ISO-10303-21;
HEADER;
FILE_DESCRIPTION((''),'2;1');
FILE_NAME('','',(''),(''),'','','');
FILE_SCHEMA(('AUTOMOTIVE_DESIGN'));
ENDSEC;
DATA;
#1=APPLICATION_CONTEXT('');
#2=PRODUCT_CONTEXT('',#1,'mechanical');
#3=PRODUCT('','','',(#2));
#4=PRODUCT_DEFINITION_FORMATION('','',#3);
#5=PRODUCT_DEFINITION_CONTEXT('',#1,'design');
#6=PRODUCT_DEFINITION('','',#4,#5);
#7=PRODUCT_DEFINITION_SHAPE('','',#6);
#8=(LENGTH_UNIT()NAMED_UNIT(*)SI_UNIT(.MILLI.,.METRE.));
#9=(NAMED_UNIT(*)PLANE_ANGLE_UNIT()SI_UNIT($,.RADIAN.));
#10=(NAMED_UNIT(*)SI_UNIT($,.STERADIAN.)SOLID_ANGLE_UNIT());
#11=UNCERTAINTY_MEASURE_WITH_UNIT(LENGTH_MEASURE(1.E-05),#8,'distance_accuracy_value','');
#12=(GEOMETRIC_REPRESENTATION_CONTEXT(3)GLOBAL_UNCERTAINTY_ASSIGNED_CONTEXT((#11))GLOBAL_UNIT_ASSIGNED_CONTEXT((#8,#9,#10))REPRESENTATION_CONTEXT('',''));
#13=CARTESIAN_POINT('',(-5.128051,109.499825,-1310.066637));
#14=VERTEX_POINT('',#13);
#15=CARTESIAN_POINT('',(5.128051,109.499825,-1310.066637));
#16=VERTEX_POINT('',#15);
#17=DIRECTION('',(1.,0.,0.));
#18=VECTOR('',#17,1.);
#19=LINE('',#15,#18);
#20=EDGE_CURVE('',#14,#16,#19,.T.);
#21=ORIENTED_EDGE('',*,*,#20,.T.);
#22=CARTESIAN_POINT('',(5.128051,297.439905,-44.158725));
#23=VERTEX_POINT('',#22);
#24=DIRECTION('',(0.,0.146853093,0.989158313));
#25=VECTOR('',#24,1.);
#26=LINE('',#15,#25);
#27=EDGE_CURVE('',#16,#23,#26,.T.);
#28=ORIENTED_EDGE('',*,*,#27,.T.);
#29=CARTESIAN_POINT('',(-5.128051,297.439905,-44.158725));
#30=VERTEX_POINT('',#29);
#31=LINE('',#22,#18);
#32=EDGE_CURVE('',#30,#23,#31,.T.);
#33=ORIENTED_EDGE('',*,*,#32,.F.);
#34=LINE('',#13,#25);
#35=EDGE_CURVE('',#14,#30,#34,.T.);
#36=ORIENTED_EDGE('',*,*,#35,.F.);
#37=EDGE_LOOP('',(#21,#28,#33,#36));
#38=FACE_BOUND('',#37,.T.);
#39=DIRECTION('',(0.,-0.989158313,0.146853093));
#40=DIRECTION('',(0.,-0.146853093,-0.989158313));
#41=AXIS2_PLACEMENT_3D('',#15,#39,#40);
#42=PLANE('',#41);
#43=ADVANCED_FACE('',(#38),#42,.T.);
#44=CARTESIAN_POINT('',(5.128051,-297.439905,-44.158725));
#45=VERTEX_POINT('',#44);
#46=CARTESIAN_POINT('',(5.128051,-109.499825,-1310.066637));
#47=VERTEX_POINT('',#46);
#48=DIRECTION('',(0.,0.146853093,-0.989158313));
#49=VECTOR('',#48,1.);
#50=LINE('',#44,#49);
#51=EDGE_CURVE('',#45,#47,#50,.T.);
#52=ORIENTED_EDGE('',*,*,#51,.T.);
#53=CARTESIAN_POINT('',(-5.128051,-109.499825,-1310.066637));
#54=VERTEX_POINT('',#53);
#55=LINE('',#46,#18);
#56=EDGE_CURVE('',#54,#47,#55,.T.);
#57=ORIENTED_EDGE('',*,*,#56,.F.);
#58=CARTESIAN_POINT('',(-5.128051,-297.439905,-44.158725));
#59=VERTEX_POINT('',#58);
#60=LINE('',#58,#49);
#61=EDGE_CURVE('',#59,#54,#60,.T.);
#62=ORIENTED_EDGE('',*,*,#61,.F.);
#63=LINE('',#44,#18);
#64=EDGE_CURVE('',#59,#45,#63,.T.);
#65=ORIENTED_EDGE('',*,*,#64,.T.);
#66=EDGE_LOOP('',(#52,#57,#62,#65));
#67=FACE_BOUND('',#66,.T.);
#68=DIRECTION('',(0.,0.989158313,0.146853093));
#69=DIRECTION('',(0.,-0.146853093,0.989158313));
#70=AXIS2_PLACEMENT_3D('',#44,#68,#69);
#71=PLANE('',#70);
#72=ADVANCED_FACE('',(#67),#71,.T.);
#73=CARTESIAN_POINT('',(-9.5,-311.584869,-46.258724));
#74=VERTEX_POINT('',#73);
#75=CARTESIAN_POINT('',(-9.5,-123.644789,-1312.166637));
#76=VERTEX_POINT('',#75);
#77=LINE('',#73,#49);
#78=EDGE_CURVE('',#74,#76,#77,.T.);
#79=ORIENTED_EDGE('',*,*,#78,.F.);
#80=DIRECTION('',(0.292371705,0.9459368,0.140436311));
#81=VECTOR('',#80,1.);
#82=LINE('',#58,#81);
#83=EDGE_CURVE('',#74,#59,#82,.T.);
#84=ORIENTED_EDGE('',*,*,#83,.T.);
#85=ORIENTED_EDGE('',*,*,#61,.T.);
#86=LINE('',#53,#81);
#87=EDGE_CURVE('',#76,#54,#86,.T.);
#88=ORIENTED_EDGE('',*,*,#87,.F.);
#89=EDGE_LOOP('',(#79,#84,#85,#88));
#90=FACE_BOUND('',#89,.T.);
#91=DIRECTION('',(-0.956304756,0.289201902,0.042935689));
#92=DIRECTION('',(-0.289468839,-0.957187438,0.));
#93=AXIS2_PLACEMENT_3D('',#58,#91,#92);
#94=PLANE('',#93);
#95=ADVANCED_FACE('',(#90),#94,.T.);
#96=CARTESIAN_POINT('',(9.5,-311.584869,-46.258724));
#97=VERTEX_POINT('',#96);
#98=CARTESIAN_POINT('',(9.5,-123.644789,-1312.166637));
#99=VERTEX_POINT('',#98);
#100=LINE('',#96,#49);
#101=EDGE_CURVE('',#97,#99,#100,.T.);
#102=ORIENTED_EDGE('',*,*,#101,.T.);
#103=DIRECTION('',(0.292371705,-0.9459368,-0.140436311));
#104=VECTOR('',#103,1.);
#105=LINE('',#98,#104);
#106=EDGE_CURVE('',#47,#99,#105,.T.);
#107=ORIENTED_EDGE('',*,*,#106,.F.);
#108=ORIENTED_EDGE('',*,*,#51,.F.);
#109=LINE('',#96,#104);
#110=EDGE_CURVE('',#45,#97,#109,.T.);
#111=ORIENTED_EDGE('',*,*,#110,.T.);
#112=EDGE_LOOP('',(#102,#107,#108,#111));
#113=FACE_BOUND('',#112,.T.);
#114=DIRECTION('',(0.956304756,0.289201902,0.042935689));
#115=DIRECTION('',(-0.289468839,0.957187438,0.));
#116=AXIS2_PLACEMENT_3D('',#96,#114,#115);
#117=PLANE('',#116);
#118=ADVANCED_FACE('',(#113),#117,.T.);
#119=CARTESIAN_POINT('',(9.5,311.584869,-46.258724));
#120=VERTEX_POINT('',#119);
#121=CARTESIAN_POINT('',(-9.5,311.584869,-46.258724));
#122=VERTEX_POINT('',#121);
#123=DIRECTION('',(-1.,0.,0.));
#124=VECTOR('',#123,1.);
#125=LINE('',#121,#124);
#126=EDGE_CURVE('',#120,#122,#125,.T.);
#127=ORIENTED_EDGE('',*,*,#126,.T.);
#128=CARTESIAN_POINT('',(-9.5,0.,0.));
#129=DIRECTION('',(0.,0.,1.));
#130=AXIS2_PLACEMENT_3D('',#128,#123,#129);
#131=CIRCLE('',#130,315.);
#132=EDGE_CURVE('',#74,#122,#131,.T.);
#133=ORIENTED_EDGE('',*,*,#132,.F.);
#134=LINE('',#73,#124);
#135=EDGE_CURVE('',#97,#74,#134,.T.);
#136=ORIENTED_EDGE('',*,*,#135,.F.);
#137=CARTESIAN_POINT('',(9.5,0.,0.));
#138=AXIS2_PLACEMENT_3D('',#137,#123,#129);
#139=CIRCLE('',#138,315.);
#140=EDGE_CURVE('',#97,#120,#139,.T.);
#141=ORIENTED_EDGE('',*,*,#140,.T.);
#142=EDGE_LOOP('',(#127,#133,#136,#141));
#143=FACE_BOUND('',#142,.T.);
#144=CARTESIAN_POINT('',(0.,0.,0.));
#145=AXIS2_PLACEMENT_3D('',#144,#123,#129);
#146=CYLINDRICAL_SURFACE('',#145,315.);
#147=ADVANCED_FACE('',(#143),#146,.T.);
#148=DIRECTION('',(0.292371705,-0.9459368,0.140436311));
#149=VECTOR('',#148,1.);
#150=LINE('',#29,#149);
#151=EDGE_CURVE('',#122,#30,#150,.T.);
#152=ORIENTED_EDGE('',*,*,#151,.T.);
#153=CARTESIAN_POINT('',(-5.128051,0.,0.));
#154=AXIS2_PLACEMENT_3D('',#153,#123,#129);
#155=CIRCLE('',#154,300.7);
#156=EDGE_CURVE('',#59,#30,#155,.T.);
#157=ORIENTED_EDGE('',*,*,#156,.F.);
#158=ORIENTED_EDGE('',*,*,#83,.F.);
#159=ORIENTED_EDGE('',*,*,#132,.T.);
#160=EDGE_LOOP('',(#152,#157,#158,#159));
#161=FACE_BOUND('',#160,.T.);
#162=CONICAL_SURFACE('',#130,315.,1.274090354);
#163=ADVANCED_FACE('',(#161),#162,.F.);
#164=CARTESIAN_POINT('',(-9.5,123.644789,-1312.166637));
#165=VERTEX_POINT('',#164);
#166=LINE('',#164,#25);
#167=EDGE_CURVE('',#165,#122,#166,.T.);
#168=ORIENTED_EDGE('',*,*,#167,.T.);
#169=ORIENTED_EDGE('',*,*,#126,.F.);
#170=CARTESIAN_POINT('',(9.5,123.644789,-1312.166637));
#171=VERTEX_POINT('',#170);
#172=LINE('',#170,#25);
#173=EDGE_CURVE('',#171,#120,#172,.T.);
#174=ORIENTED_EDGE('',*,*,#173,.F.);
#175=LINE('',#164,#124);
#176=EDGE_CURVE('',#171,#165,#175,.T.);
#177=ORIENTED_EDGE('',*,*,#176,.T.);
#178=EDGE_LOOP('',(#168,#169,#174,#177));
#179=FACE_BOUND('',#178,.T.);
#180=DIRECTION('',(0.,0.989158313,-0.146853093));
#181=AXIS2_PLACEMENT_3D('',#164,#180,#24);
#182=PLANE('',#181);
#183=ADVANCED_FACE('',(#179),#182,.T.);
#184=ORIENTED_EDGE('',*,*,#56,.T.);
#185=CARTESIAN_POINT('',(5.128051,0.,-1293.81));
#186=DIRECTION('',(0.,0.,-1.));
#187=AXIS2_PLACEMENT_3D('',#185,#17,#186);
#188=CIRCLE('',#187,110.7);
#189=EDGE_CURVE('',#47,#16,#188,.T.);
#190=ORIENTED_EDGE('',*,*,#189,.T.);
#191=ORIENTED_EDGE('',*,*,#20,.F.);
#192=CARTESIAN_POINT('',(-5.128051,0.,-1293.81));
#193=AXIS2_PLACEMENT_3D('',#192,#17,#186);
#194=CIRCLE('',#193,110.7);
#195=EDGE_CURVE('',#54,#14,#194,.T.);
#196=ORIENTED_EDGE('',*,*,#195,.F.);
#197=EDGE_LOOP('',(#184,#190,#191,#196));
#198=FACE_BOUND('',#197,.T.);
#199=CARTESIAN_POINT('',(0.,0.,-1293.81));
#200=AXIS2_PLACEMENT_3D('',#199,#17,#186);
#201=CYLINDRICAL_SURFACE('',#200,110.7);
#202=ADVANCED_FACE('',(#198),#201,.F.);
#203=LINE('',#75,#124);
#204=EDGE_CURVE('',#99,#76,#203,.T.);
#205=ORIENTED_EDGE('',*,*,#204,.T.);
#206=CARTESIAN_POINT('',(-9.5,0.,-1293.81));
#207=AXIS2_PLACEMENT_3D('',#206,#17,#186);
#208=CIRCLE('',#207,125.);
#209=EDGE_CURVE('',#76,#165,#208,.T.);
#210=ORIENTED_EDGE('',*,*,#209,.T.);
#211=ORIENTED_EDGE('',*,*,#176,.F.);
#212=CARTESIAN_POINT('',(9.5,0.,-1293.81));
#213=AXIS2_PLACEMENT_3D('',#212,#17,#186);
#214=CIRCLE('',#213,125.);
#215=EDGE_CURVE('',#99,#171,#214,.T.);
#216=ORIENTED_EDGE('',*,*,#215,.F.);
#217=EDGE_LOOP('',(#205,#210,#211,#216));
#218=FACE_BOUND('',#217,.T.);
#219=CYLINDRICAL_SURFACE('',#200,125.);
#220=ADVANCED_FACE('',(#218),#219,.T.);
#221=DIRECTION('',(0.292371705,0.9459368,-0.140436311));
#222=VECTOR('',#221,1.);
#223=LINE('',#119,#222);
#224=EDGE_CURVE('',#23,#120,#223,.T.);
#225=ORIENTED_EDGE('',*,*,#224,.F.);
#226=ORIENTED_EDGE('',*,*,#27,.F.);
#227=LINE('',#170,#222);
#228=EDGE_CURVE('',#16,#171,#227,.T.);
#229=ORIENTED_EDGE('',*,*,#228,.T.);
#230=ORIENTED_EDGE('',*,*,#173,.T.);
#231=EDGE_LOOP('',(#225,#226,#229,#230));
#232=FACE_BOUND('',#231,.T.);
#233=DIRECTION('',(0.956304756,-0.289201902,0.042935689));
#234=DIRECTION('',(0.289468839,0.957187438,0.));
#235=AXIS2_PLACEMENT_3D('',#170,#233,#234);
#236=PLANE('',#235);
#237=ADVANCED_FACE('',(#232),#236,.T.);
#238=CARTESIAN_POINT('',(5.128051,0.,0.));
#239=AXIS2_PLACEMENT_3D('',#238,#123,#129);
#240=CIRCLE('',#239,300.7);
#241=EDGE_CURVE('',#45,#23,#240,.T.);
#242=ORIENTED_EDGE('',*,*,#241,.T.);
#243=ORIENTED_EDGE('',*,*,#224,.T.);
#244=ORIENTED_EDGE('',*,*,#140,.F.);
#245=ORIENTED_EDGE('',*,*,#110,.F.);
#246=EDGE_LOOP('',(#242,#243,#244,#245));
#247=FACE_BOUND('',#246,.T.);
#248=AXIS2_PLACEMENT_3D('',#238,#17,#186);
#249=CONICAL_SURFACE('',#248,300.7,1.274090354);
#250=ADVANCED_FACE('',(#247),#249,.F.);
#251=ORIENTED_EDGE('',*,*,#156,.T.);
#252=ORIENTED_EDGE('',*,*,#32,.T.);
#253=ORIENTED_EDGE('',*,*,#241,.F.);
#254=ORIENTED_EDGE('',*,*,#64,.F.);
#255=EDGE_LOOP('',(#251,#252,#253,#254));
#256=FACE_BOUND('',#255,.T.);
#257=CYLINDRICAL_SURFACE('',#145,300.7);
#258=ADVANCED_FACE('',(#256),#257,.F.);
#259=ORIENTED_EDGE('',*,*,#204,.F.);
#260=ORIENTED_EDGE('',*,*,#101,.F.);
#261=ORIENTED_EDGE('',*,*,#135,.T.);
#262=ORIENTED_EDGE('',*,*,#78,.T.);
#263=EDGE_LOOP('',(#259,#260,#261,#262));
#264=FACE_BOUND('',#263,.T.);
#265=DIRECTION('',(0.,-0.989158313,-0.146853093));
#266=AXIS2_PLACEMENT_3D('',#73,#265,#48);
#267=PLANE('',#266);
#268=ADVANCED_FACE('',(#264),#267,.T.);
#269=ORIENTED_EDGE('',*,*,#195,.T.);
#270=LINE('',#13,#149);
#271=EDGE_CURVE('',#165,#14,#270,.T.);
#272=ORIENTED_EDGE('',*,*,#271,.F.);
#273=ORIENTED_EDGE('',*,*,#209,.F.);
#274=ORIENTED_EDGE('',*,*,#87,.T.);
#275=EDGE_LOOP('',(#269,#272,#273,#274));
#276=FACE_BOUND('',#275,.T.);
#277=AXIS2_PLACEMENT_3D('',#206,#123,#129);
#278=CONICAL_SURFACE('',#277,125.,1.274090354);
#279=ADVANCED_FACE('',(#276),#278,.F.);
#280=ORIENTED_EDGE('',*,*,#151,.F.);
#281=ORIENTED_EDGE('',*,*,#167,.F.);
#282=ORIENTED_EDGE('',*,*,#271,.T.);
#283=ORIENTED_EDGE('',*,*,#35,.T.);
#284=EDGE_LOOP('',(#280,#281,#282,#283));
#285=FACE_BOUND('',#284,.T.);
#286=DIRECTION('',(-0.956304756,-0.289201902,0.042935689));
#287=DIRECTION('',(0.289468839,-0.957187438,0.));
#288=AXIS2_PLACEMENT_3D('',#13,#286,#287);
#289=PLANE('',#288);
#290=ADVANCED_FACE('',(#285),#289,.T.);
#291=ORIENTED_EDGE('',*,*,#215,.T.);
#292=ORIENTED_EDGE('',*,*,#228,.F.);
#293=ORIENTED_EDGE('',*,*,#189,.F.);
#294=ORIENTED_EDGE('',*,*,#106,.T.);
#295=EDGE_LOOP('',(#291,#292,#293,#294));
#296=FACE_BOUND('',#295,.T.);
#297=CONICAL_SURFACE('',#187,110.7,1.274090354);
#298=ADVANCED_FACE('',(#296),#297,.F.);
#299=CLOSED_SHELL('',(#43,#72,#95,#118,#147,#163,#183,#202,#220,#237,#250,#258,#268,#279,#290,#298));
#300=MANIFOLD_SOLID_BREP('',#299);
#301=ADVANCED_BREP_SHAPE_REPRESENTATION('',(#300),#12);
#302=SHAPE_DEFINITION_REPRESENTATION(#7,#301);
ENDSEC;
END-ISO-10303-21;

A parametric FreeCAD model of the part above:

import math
import FreeCAD as App
import Part
import Sketcher
Q = App.Units.Quantity


def add_polygon(sketch, points):
    """Adds a closed chain of lines whose ends are joined by coincident constraints."""
    first, n = sketch.GeometryCount, len(points)
    for a, b in zip(points, points[1:] + points[:1]):
        sketch.addGeometry(Part.LineSegment(App.Vector(*a, 0), App.Vector(*b, 0)), False)
    for i in range(n):
        sketch.addConstraint(Sketcher.Constraint("Coincident", first + i, 2, first + (i + 1) % n, 1))

doc = App.newDocument("Part")
body = doc.addObject("PartDesign::Body", "Body")

# Sketch on XY plane
sketch1 = doc.addObject("Sketcher::SketchObject", "Sketch")
body.addObject(sketch1)
sketch1.AttachmentSupport = (doc.XY_Plane, [""])
sketch1.MapMode = "FlatFace"
add_polygon(sketch1, [(10, 315), (-10, 315), (-5, 301), (5, 301)])  # lines 0-3
sketch1.addConstraint(Sketcher.Constraint("Horizontal", 0))
sketch1.addConstraint(Sketcher.Constraint("Horizontal", 2))
sketch1.addConstraint(Sketcher.Constraint("Equal", 1, 3))
sketch1.addConstraint(Sketcher.Constraint("DistanceX", 0, 2, 0, 1, Q("19 mm")))
sketch1.addConstraint(Sketcher.Constraint("Angle", 1, Q("-73 deg")))
sketch1.addConstraint(Sketcher.Constraint("DistanceY", -1, 1, 0, 2, Q("315 mm")))
sketch1.addConstraint(Sketcher.Constraint("DistanceX", 0, 2, -1, 1, Q("9.5 mm")))
sketch1.addConstraint(Sketcher.Constraint("DistanceY", -1, 1, 1, 2, Q("300.7 mm")))

# Sketch on YZ plane
sketch2 = doc.addObject("Sketcher::SketchObject", "Sketch001")
body.addObject(sketch2)
sketch2.AttachmentSupport = (doc.YZ_Plane, [""])
sketch2.MapMode = "FlatFace"
sketch2.addGeometry(Part.LineSegment(App.Vector(312, -46, 0), App.Vector(124, -1312, 0)), False)
sketch2.addGeometry(Part.ArcOfCircle(Part.Circle(App.Vector(0, -1294, 0), App.Vector(0, 0, 1), 125), math.radians(-172), math.radians(-8)), False)
sketch2.addGeometry(Part.LineSegment(App.Vector(-124, -1312, 0), App.Vector(-312, -46, 0)), False)
sketch2.addGeometry(Part.ArcOfCircle(Part.Circle(App.Vector(0, 0, 0), App.Vector(0, 0, 1), 315), math.radians(-8), math.radians(188)), False)
sketch2.addConstraint(Sketcher.Constraint("Tangent", 0, 2, 1, 2))
sketch2.addConstraint(Sketcher.Constraint("Tangent", 1, 1, 2, 1))
sketch2.addConstraint(Sketcher.Constraint("Tangent", 2, 2, 3, 2))
sketch2.addConstraint(Sketcher.Constraint("Tangent", 3, 1, 0, 1))
sketch2.addConstraint(Sketcher.Constraint("Coincident", 3, 3, -1, 1))
sketch2.addConstraint(Sketcher.Constraint("PointOnObject", 1, 3, -2))
sketch2.addConstraint(Sketcher.Constraint("Radius", 1, Q("125 mm")))
sketch2.addConstraint(Sketcher.Constraint("Radius", 3, Q("315 mm")))
sketch2.addConstraint(Sketcher.Constraint("DistanceY", 1, 3, -1, 1, Q("1293.81 mm")))
doc.recompute()

additivepipe = doc.addObject("PartDesign::AdditivePipe", "AdditivePipe")
body.addObject(additivepipe)
additivepipe.Profile = sketch1
additivepipe.Spine = (sketch2, ["Edge1", "Edge2", "Edge3", "Edge4"])

doc.recompute()
